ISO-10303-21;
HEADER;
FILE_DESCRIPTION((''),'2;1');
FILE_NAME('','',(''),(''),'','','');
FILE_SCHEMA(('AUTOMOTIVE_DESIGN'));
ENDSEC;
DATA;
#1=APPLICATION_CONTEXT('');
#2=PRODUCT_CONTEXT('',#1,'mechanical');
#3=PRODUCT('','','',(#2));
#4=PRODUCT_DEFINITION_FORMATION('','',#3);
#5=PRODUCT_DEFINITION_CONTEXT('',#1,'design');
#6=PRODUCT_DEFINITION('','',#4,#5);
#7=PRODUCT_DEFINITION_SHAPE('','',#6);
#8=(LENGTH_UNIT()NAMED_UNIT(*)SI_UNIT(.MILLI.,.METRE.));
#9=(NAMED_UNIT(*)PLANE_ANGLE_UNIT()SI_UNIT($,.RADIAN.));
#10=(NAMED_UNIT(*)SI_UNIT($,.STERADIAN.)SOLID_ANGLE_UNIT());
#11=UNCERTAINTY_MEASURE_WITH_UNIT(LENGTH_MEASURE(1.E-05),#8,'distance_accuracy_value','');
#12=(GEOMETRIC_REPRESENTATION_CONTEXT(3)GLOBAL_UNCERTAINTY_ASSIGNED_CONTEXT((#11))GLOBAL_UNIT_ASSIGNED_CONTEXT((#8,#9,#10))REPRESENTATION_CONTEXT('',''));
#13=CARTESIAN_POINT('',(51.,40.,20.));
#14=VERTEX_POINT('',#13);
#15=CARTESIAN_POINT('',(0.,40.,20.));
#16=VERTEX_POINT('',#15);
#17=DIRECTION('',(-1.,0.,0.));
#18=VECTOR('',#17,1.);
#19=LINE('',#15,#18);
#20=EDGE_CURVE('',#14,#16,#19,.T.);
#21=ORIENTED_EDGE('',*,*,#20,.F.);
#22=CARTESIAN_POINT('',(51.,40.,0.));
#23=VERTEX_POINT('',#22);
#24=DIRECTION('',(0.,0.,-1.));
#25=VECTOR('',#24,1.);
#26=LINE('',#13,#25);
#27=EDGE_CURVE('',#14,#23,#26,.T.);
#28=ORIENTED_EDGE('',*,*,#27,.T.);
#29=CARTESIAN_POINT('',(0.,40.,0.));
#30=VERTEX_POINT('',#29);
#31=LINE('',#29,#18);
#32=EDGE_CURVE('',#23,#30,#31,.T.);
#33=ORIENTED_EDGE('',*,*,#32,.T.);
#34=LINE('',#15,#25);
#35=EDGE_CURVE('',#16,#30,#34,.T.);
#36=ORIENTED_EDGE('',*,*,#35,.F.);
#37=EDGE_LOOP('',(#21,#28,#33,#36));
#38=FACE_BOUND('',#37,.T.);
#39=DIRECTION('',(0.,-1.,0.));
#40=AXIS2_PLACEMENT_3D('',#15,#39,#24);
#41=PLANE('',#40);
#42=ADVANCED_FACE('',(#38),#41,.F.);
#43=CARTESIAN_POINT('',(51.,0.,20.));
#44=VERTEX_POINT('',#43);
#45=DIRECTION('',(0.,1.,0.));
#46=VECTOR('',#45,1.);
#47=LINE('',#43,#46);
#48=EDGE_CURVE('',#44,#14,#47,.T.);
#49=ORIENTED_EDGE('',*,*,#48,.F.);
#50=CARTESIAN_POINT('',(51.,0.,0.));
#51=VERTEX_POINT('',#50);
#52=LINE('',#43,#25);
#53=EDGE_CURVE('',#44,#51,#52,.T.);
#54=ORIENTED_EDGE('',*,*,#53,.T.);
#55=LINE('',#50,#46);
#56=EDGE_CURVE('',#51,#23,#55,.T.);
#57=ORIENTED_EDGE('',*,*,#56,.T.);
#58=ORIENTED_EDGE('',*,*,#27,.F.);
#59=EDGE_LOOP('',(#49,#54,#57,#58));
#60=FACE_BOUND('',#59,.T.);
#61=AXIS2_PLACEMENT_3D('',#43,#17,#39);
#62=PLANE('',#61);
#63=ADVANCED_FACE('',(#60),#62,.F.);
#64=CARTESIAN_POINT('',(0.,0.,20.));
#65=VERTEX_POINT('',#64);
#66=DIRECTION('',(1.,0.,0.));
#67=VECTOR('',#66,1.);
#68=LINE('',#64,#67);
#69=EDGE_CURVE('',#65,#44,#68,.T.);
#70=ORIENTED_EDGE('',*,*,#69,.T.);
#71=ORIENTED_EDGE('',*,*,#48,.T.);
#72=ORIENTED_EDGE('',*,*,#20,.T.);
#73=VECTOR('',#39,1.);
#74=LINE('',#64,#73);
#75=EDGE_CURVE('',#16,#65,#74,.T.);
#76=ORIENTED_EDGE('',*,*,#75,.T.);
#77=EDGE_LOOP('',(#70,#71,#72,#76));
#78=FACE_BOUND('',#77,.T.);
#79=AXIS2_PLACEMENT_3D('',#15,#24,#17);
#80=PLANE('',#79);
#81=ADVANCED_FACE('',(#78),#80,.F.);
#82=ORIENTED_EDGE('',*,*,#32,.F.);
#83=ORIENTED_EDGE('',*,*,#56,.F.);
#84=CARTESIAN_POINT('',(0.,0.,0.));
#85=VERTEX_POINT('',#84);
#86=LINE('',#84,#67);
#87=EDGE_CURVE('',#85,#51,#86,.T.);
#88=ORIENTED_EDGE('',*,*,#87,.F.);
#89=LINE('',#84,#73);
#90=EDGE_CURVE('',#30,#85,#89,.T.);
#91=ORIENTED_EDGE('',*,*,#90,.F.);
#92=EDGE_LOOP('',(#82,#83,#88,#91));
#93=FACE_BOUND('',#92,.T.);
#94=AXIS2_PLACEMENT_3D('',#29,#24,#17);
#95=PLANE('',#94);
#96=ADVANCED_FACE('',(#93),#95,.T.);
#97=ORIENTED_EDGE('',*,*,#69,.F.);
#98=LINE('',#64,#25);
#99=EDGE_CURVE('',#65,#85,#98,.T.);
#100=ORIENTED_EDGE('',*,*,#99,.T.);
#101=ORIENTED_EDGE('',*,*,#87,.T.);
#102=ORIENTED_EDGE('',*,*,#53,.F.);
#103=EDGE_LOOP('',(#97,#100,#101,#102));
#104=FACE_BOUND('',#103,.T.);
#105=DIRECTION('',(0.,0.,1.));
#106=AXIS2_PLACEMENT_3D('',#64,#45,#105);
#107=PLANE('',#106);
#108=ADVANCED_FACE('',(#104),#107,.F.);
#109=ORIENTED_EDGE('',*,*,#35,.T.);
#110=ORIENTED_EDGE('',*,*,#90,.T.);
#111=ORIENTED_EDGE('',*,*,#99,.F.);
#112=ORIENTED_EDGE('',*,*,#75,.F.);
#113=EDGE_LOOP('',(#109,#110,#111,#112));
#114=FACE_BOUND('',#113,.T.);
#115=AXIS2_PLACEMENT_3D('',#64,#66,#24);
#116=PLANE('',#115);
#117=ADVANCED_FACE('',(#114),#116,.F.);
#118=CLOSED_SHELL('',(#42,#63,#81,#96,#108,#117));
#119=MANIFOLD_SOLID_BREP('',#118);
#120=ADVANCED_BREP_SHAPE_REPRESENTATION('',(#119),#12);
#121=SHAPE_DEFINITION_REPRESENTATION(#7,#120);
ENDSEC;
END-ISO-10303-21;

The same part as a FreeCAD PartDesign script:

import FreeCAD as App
import Part
import Sketcher

V = App.Vector
Q = App.Units.Quantity


def add_polygon(sketch, points):
    """Adds a closed chain of lines whose ends are joined by coincident constraints."""
    first, n = sketch.GeometryCount, len(points)
    for a, b in zip(points, points[1:] + points[:1]):
        sketch.addGeometry(Part.LineSegment(App.Vector(*a, 0), App.Vector(*b, 0)), False)
    for i in range(n):
        sketch.addConstraint(Sketcher.Constraint("Coincident", first + i, 2, first + (i + 1) % n, 1))

doc = App.newDocument("Part")
body = doc.addObject("PartDesign::Body", "Body")

# Sketch on XY plane
sketch1 = body.newObject("Sketcher::SketchObject", "Sketch")
sketch1.AttachmentSupport = (doc.getObject("XY_Plane"), [""])
sketch1.MapMode = "FlatFace"
add_polygon(sketch1, [(0, 40), (0, 0), (51, 0), (51, 40)])  # lines 0-3
sketch1.addConstraint([
    Sketcher.Constraint("Vertical", 0),
    Sketcher.Constraint("Horizontal", 1),
    Sketcher.Constraint("Vertical", 2),
    Sketcher.Constraint("Horizontal", 3),
    Sketcher.Constraint("Coincident", 0, 2, -1, 1),
    Sketcher.Constraint("DistanceX", 1, 1, 1, 2, Q("51 mm")),
    Sketcher.Constraint("DistanceY", 0, 2, 0, 1, Q("40 mm")),
])
pad1 = body.newObject("PartDesign::Pad", "Pad")
pad1.Profile = sketch1
pad1.Length = 20

doc.recompute()
